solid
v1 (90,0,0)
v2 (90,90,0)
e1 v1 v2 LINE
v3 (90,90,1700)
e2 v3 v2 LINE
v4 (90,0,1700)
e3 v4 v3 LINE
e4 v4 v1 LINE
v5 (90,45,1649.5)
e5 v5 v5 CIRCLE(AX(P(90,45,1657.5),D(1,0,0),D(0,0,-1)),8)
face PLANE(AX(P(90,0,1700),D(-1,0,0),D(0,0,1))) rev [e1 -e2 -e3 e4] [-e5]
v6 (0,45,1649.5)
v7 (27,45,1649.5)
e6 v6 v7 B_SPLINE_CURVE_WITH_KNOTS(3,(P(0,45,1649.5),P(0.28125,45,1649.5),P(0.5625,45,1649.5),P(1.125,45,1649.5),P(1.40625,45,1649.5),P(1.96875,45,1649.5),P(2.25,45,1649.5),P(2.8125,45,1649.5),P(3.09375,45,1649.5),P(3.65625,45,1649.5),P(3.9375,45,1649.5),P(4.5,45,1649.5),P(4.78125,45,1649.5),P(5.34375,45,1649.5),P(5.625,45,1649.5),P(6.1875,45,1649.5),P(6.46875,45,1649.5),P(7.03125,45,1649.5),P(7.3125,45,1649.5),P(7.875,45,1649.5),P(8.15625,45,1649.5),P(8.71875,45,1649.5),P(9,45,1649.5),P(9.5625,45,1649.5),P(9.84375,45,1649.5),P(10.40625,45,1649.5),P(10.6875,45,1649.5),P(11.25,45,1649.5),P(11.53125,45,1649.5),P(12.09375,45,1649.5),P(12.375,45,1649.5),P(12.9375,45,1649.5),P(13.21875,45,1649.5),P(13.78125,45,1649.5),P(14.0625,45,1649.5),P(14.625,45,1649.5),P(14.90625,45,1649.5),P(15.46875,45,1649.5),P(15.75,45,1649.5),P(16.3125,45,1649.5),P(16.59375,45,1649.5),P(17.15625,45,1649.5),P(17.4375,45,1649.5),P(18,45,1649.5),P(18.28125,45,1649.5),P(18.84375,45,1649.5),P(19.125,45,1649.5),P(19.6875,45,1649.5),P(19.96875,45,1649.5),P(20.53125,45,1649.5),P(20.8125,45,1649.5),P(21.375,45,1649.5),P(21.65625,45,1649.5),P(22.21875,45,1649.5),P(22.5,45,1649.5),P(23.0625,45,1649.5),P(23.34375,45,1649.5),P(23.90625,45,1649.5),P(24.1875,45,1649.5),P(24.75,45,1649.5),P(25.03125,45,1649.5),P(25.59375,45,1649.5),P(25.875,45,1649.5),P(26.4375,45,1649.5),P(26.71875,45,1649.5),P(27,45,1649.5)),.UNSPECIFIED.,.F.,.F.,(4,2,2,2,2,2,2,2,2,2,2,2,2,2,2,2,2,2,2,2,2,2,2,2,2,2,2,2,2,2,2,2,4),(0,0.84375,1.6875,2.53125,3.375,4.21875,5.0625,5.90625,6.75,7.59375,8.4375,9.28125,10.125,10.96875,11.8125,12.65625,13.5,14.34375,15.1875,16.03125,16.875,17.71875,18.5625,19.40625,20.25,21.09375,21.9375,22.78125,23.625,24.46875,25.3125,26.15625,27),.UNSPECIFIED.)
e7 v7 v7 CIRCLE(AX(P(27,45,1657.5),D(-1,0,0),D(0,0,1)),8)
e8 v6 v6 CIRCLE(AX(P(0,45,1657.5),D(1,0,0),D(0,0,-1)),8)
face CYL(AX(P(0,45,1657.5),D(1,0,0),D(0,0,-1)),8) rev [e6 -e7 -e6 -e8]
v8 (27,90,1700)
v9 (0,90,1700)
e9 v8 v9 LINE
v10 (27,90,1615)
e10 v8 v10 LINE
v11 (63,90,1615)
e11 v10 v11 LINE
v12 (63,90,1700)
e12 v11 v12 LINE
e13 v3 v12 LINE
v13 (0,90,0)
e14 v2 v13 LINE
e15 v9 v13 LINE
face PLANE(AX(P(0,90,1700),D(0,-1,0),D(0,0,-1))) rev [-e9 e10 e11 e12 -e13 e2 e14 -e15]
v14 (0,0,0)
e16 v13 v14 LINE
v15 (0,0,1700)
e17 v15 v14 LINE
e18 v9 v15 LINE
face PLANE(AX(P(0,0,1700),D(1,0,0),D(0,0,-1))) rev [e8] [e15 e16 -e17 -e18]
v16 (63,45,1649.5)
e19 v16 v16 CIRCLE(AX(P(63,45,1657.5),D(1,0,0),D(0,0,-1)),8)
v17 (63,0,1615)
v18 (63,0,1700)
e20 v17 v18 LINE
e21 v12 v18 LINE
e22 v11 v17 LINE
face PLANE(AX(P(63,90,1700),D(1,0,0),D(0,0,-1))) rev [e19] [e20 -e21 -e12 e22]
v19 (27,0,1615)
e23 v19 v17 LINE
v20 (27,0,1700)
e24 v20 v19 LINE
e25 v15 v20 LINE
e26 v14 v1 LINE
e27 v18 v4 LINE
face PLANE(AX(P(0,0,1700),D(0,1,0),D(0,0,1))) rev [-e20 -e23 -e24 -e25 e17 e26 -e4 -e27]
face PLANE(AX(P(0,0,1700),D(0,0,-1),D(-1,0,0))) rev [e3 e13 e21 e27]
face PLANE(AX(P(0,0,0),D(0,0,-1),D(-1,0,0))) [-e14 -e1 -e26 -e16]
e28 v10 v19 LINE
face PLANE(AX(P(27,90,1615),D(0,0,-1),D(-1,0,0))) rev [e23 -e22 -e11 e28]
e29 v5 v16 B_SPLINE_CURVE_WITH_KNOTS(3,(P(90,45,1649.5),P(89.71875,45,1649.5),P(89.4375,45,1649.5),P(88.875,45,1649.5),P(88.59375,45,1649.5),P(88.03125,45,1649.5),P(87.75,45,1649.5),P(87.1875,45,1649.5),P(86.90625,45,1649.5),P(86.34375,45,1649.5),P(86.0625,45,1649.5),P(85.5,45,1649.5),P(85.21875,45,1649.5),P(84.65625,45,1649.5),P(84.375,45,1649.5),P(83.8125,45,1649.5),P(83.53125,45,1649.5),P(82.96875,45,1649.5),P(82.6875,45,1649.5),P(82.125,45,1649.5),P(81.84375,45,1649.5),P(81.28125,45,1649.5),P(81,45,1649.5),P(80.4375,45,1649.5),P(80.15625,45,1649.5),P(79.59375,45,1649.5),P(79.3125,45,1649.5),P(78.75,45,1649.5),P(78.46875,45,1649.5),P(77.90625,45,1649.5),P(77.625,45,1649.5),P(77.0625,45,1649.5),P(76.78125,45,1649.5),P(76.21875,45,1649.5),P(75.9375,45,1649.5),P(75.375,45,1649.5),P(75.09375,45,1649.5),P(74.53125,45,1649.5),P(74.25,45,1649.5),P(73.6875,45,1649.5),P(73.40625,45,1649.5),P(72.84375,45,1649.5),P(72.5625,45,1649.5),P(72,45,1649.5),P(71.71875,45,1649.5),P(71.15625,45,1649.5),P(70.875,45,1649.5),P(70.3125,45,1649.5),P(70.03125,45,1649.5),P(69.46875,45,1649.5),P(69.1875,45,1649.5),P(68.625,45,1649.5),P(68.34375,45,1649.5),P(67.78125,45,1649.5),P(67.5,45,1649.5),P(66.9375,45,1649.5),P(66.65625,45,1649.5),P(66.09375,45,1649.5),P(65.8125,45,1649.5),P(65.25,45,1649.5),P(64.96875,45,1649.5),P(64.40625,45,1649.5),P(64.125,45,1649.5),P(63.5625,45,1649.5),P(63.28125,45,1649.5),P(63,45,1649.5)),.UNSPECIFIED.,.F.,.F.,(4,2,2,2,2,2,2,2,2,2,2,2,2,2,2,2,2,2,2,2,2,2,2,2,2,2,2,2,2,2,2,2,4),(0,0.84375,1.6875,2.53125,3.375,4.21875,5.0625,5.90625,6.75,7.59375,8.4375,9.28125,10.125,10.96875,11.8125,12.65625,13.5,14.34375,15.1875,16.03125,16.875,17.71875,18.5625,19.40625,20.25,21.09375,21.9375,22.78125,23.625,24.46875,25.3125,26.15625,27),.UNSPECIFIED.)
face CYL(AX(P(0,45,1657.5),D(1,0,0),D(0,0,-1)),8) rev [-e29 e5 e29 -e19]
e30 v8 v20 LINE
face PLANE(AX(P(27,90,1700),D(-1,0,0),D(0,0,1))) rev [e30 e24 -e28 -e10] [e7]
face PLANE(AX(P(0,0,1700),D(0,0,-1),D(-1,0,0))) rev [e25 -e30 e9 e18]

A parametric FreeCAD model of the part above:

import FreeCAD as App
import Part
import Sketcher
from FreeCAD import Vector

doc = App.newDocument("Part")
params = doc.addObject("Spreadsheet::Sheet", "Params")
for row, (alias, value) in enumerate([
    ("sketch1_width", "90 mm"),
    ("pad1_length", "1700 mm"),
    ("sketch2_width", "36 mm"),
    ("sketch2_height", "85 mm"),
    ("sketch3_diameter", "16 mm"),
], start=1):
    params.set(f"A{row}", alias)
    params.set(f"B{row}", "=" + value)
    params.setAlias(f"B{row}", alias)

body = doc.addObject("PartDesign::Body", "Body")

sketch1 = body.newObject("Sketcher::SketchObject", "Sketch")
sketch1.AttachmentSupport = (doc.getObject("XY_Plane"), [""])
sketch1.MapMode = "FlatFace"
sketch1.addGeometry([
    Part.LineSegment(Vector(0, 90, 0), Vector(0, 0, 0)),
    Part.LineSegment(Vector(0, 0, 0), Vector(90, 0, 0)),
    Part.LineSegment(Vector(90, 0, 0), Vector(90, 90, 0)),
    Part.LineSegment(Vector(90, 90, 0), Vector(0, 90, 0)),
], False)
sketch1.addConstraint([
    Sketcher.Constraint("Coincident", 0, 2, 1, 1),
    Sketcher.Constraint("Coincident", 1, 2, 2, 1),
    Sketcher.Constraint("Coincident", 2, 2, 3, 1),
    Sketcher.Constraint("Coincident", 3, 2, 0, 1),
    Sketcher.Constraint("Vertical", 0),
    Sketcher.Constraint("Horizontal", 1),
    Sketcher.Constraint("Vertical", 2),
    Sketcher.Constraint("Horizontal", 3),
    Sketcher.Constraint("Coincident", 0, 2, -1, 1),
    Sketcher.Constraint("Equal", 3, 0),
    Sketcher.Constraint("DistanceX", 1, 1, 1, 2, 90.0),
])
sketch1.setExpression("Constraints[10]", "Params.sketch1_width")
pad1 = body.newObject("PartDesign::Pad", "Pad")
pad1.Profile = sketch1
pad1.setExpression("Length", "Params.pad1_length")

sketch2 = body.newObject("Sketcher::SketchObject", "Sketch001")
sketch2.AttachmentSupport = (doc.getObject("XZ_Plane"), [""])
sketch2.MapMode = "FlatFace"
sketch2.addGeometry([
    Part.LineSegment(Vector(27, 1700, 0), Vector(27, 1615, 0)),
    Part.LineSegment(Vector(27, 1615, 0), Vector(63, 1615, 0)),
    Part.LineSegment(Vector(63, 1615, 0), Vector(63, 1700, 0)),
    Part.LineSegment(Vector(63, 1700, 0), Vector(27, 1700, 0)),
], False)
sketch2.addConstraint([
    Sketcher.Constraint("Coincident", 0, 2, 1, 1),
    Sketcher.Constraint("Coincident", 1, 2, 2, 1),
    Sketcher.Constraint("Coincident", 2, 2, 3, 1),
    Sketcher.Constraint("Coincident", 3, 2, 0, 1),
    Sketcher.Constraint("Vertical", 0),
    Sketcher.Constraint("Horizontal", 1),
    Sketcher.Constraint("Vertical", 2),
    Sketcher.Constraint("Horizontal", 3),
    Sketcher.Constraint("DistanceX", 1, 1, 1, 2, 36.0),
    Sketcher.Constraint("DistanceY", 0, 2, 0, 1, 85.0),
    Sketcher.Constraint("DistanceX", -1, 1, 0, 2, 27.0),
    Sketcher.Constraint("DistanceY", -1, 1, 0, 2, 1615.0),
])
sketch2.setExpression("Constraints[8]", "Params.sketch2_width")
sketch2.setExpression("Constraints[9]", "Params.sketch2_height")
pocket1 = body.newObject("PartDesign::Pocket", "Pocket")
pocket1.Profile = sketch2
pocket1.Type = "ThroughAll"

sketch3 = body.newObject("Sketcher::SketchObject", "Sketch002")
sketch3.AttachmentSupport = (doc.getObject("YZ_Plane"), [""])
sketch3.MapMode = "FlatFace"
sketch3.AttachmentOffset = App.Placement(Vector(0, 0, 90), App.Rotation())
sketch3.addGeometry(Part.Circle(Vector(45, 1658, 0), Vector(0, 0, 1), 8), False)
sketch3.addConstraint([
    Sketcher.Constraint("Diameter", 0, 16.0),
    Sketcher.Constraint("DistanceX", -1, 1, 0, 3, 45.0),
    Sketcher.Constraint("DistanceY", -1, 1, 0, 3, 1657.5),
])
sketch3.setExpression("Constraints[0]", "Params.sketch3_diameter")
pocket2 = body.newObject("PartDesign::Pocket", "Pocket001")
pocket2.Profile = sketch3
pocket2.Type = "ThroughAll"

doc.recompute()
